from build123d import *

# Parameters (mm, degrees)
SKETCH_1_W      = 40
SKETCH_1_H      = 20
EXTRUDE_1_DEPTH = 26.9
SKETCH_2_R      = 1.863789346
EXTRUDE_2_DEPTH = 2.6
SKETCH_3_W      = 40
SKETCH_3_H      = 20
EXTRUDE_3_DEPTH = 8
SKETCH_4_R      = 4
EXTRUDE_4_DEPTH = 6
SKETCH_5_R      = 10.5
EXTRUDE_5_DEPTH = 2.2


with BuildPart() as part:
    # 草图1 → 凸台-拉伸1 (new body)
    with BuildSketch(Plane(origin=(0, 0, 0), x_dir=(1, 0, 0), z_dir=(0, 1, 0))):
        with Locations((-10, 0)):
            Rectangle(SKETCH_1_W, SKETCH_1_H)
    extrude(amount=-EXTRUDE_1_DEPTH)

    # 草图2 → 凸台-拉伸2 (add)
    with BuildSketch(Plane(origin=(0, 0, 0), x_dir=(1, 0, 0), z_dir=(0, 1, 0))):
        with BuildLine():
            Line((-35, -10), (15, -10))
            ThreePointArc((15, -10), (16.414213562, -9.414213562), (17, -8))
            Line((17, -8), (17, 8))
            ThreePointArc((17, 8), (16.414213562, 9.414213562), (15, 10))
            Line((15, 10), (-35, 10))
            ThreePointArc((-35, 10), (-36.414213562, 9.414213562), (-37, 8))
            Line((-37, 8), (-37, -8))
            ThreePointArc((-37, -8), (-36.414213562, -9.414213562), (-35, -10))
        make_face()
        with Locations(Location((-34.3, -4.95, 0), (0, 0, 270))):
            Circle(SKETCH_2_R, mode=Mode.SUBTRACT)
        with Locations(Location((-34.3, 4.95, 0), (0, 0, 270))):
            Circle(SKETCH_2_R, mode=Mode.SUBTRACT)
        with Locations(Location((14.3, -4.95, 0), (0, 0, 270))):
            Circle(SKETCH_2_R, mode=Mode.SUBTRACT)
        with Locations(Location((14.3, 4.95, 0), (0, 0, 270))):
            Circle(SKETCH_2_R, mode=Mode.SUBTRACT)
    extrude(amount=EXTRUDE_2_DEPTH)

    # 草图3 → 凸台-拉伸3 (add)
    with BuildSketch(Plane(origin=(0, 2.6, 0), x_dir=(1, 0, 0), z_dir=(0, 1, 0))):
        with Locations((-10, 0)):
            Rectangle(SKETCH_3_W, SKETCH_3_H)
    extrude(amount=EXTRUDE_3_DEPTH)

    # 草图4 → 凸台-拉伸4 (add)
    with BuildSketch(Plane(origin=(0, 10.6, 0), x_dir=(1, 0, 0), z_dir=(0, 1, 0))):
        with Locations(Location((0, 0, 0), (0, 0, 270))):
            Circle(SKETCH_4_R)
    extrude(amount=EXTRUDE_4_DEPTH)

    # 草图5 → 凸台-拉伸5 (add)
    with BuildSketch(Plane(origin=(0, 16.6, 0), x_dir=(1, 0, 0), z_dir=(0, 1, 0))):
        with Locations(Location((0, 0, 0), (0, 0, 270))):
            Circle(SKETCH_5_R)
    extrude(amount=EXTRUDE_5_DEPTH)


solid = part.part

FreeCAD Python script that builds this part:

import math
import FreeCAD as App
import Part
import Sketcher
from FreeCAD import Vector
Q = App.Units.Quantity

doc = App.newDocument("Part")
body = doc.addObject("PartDesign::Body", "Body")

# Sketch on XZ plane
sketch1 = body.newObject("Sketcher::SketchObject", "Sketch")
sketch1.AttachmentSupport = (doc.getObject("XZ_Plane"), [""])
sketch1.MapMode = "FlatFace"
sketch1.addGeometry([
    Part.LineSegment(Vector(-30, -10, 0), Vector(-30, 10, 0)),
    Part.LineSegment(Vector(-30, 10, 0), Vector(10, 10, 0)),
    Part.LineSegment(Vector(10, 10, 0), Vector(10, -10, 0)),
    Part.LineSegment(Vector(10, -10, 0), Vector(-30, -10, 0)),
], False)
sketch1.addConstraint([
    Sketcher.Constraint("Coincident", 0, 2, 1, 1),
    Sketcher.Constraint("Coincident", 1, 2, 2, 1),
    Sketcher.Constraint("Coincident", 2, 2, 3, 1),
    Sketcher.Constraint("Coincident", 3, 2, 0, 1),
    Sketcher.Constraint("Vertical", 0),
    Sketcher.Constraint("Horizontal", 1),
    Sketcher.Constraint("Vertical", 2),
    Sketcher.Constraint("Horizontal", 3),
    Sketcher.Constraint("DistanceX", 1, 1, 1, 2, Q("40 mm")),
    Sketcher.Constraint("DistanceY", 0, 1, 0, 2, Q("20 mm")),
    Sketcher.Constraint("DistanceX", 0, 2, -1, 1, Q("30 mm")),
    Sketcher.Constraint("DistanceY", -1, 1, 0, 2, Q("10 mm")),
])
pad1 = body.newObject("PartDesign::Pad", "Pad")
pad1.Profile = sketch1
pad1.Length = 26.9

# Sketch on XZ plane
sketch2 = body.newObject("Sketcher::SketchObject", "Sketch001")
sketch2.AttachmentSupport = (doc.getObject("XZ_Plane"), [""])
sketch2.MapMode = "FlatFace"
sketch2.addGeometry([
    Part.LineSegment(Vector(-35, 10, 0), Vector(15, 10, 0)),  # 0
    Part.ArcOfCircle(Part.Circle(Vector(15, 8, 0), Vector(0, 0, 1), 2), math.radians(0), math.radians(90)),  # 1
    Part.LineSegment(Vector(17, 8, 0), Vector(17, -8, 0)),  # 2
    Part.ArcOfCircle(Part.Circle(Vector(15, -8, 0), Vector(0, 0, 1), 2), math.radians(-90), math.radians(0)),  # 3
    Part.LineSegment(Vector(15, -10, 0), Vector(-35, -10, 0)),  # 4
    Part.ArcOfCircle(Part.Circle(Vector(-35, -8, 0), Vector(0, 0, 1), 2), math.radians(-180), math.radians(-90)),  # 5
    Part.LineSegment(Vector(-37, -8, 0), Vector(-37, 8, 0)),  # 6
    Part.ArcOfCircle(Part.Circle(Vector(-35, 8, 0), Vector(0, 0, 1), 2), math.radians(90), math.radians(180)),  # 7
    Part.Circle(Vector(-34.3, 5, 0), Vector(0, 0, 1), 1.9),  # 8
    Part.Circle(Vector(14.3, 5, 0), Vector(0, 0, 1), 1.9),  # 9
    Part.Circle(Vector(-34.3, -5, 0), Vector(0, 0, 1), 1.9),  # 10
    Part.Circle(Vector(14.3, -5, 0), Vector(0, 0, 1), 1.9),  # 11
], False)
sketch2.addConstraint([
    Sketcher.Constraint("Tangent", 0, 2, 1, 2),
    Sketcher.Constraint("Tangent", 1, 1, 2, 1),
    Sketcher.Constraint("Tangent", 2, 2, 3, 2),
    Sketcher.Constraint("Tangent", 3, 1, 4, 1),
    Sketcher.Constraint("Tangent", 4, 2, 5, 2),
    Sketcher.Constraint("Tangent", 5, 1, 6, 1),
    Sketcher.Constraint("Tangent", 6, 2, 7, 2),
    Sketcher.Constraint("Tangent", 7, 1, 0, 1),
    Sketcher.Constraint("Horizontal", 0),
    Sketcher.Constraint("Vertical", 2),
    Sketcher.Constraint("Horizontal", 4),
    Sketcher.Constraint("Vertical", 6),
    Sketcher.Constraint("Equal", 1, 3),
    Sketcher.Constraint("Equal", 3, 5),
    Sketcher.Constraint("Equal", 5, 7),
    Sketcher.Constraint("Equal", 8, 9),
    Sketcher.Constraint("Equal", 9, 10),
    Sketcher.Constraint("Equal", 10, 11),
    Sketcher.Constraint("Symmetric", 8, 3, 10, 3, -1),
    Sketcher.Constraint("Symmetric", 9, 3, 11, 3, -1),
    Sketcher.Constraint("Horizontal", 8, 3, 9, 3),
    Sketcher.Constraint("Radius", 1, Q("2 mm")),
    Sketcher.Constraint("DistanceX", 0, 1, 0, 2, Q("50 mm")),
    Sketcher.Constraint("DistanceY", 2, 2, 2, 1, Q("16 mm")),
    Sketcher.Constraint("DistanceX", -1, 1, 1, 3, Q("15 mm")),
    Sketcher.Constraint("DistanceY", -1, 1, 1, 3, Q("8 mm")),
    Sketcher.Constraint("DistanceX", 8, 3, -1, 1, Q("34.3 mm")),
    Sketcher.Constraint("DistanceX", -1, 1, 9, 3, Q("14.3 mm")),
    Sketcher.Constraint("DistanceY", 10, 3, 8, 3, Q("9.9 mm")),
    Sketcher.Constraint("Diameter", 8, Q("3.727579 mm")),
])
pad2 = body.newObject("PartDesign::Pad", "Pad001")
pad2.Profile = sketch2
pad2.Length = 2.6
pad2.Reversed = True

# Sketch on XZ plane
sketch3 = body.newObject("Sketcher::SketchObject", "Sketch002")
sketch3.AttachmentSupport = (doc.getObject("XZ_Plane"), [""])
sketch3.MapMode = "FlatFace"
sketch3.AttachmentOffset = App.Placement(Vector(0, 0, -2.6), App.Rotation())
sketch3.addGeometry([
    Part.LineSegment(Vector(-30, -10, 0), Vector(-30, 10, 0)),
    Part.LineSegment(Vector(-30, 10, 0), Vector(10, 10, 0)),
    Part.LineSegment(Vector(10, 10, 0), Vector(10, -10, 0)),
    Part.LineSegment(Vector(10, -10, 0), Vector(-30, -10, 0)),
], False)
sketch3.addConstraint([
    Sketcher.Constraint("Coincident", 0, 2, 1, 1),
    Sketcher.Constraint("Coincident", 1, 2, 2, 1),
    Sketcher.Constraint("Coincident", 2, 2, 3, 1),
    Sketcher.Constraint("Coincident", 3, 2, 0, 1),
    Sketcher.Constraint("Vertical", 0),
    Sketcher.Constraint("Horizontal", 1),
    Sketcher.Constraint("Vertical", 2),
    Sketcher.Constraint("Horizontal", 3),
    Sketcher.Constraint("DistanceX", 1, 1, 1, 2, Q("40 mm")),
    Sketcher.Constraint("DistanceY", 0, 1, 0, 2, Q("20 mm")),
    Sketcher.Constraint("DistanceX", 0, 2, -1, 1, Q("30 mm")),
    Sketcher.Constraint("DistanceY", -1, 1, 0, 2, Q("10 mm")),
])
pad3 = body.newObject("PartDesign::Pad", "Pad002")
pad3.Profile = sketch3
pad3.Length = 8
pad3.Reversed = True

# Sketch on XZ plane
sketch4 = body.newObject("Sketcher::SketchObject", "Sketch003")
sketch4.AttachmentSupport = (doc.getObject("XZ_Plane"), [""])
sketch4.MapMode = "FlatFace"
sketch4.AttachmentOffset = App.Placement(Vector(0, 0, -10.6), App.Rotation())
sketch4.addGeometry(Part.Circle(Vector(0, 0, 0), Vector(0, 0, 1), 4), False)
sketch4.addConstraint([
    Sketcher.Constraint("Coincident", 0, 3, -1, 1),
    Sketcher.Constraint("Diameter", 0, Q("8 mm")),
])
pad4 = body.newObject("PartDesign::Pad", "Pad003")
pad4.Profile = sketch4
pad4.Length = 6
pad4.Reversed = True

# Sketch on XZ plane
sketch5 = body.newObject("Sketcher::SketchObject", "Sketch004")
sketch5.AttachmentSupport = (doc.getObject("XZ_Plane"), [""])
sketch5.MapMode = "FlatFace"
sketch5.AttachmentOffset = App.Placement(Vector(0, 0, -16.6), App.Rotation())
sketch5.addGeometry(Part.Circle(Vector(0, 0, 0), Vector(0, 0, 1), 10), False)
sketch5.addConstraint([
    Sketcher.Constraint("Coincident", 0, 3, -1, 1),
    Sketcher.Constraint("Diameter", 0, Q("21 mm")),
])
pad5 = body.newObject("PartDesign::Pad", "Pad004")
pad5.Profile = sketch5
pad5.Length = 2.2
pad5.Reversed = True

doc.recompute()
